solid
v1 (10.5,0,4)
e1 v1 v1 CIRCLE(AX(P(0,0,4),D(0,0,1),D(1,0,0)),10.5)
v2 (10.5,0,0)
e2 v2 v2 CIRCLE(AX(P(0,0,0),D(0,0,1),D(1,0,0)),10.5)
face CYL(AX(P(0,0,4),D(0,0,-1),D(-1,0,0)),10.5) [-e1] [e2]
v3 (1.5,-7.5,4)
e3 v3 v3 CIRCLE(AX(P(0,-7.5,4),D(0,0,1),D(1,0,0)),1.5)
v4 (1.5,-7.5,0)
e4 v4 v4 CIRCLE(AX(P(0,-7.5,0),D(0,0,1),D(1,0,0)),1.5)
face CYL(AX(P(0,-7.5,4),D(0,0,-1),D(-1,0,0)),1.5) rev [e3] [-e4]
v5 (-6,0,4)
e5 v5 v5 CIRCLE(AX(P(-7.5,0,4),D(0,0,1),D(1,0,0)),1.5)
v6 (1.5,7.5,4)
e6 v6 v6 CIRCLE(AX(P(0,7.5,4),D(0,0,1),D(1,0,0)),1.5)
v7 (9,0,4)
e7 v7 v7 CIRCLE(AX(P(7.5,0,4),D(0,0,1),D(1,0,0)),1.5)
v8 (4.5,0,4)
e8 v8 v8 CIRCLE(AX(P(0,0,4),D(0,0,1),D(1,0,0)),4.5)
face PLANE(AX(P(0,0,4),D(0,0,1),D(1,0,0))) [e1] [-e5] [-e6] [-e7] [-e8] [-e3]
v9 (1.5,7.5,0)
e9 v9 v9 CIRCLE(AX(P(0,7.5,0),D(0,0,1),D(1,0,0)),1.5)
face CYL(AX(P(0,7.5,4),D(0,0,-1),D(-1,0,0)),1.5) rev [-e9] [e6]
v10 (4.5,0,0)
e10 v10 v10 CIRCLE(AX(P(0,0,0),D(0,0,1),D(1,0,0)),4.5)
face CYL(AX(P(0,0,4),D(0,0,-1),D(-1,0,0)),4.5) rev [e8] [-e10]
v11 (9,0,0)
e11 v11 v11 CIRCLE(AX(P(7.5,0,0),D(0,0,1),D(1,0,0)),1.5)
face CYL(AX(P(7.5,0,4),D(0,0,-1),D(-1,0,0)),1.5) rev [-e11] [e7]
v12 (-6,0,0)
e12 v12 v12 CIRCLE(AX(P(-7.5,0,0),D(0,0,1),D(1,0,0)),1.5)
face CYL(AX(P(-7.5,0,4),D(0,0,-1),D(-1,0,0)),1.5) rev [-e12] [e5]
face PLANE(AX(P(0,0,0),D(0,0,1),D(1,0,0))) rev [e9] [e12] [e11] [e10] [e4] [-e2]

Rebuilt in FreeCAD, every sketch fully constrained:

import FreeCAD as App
import Part
import Sketcher

V = App.Vector
Q = App.Units.Quantity

doc = App.newDocument("Part")
body = doc.addObject("PartDesign::Body", "Body")

# Sketch on XY plane
sketch1 = doc.addObject("Sketcher::SketchObject", "Sketch")
body.addObject(sketch1)
sketch1.AttachmentSupport = (doc.XY_Plane, [""])
sketch1.MapMode = "FlatFace"
sketch1.addGeometry([
    Part.Circle(V(0, 0, 0), V(0, 0, 1), 10.5),  # 0
    Part.Circle(V(0, -7.5, 0), V(0, 0, 1), 1.5),  # 1
    Part.Circle(V(-7.5, 0, 0), V(0, 0, 1), 1.5),  # 2
    Part.Circle(V(0, 0, 0), V(0, 0, 1), 4.5),  # 3
    Part.Circle(V(7.5, 0, 0), V(0, 0, 1), 1.5),  # 4
    Part.Circle(V(0, 7.5, 0), V(0, 0, 1), 1.5),  # 5
], False)
sketch1.addConstraint([
    Sketcher.Constraint("Coincident", 0, 3, -1, 1),
    Sketcher.Constraint("Coincident", 3, 3, -1, 1),
    Sketcher.Constraint("Equal", 1, 2),
    Sketcher.Constraint("Equal", 2, 4),
    Sketcher.Constraint("Equal", 4, 5),
    Sketcher.Constraint("Symmetric", 2, 3, 4, 3, -1, 1),
    Sketcher.Constraint("Symmetric", 1, 3, 5, 3, -1, 1),
    Sketcher.Constraint("PointOnObject", 1, 3, -2),
    Sketcher.Constraint("PointOnObject", 2, 3, -1),
    Sketcher.Constraint("Diameter", 0, Q("21 mm")),
    Sketcher.Constraint("Diameter", 1, Q("3 mm")),
    Sketcher.Constraint("Diameter", 3, Q("9 mm")),
    Sketcher.Constraint("DistanceX", 2, 3, 4, 3, Q("15 mm")),
    Sketcher.Constraint("DistanceY", 1, 3, 5, 3, Q("15 mm")),
])
pad1 = doc.addObject("PartDesign::Pad", "Pad")
body.addObject(pad1)
pad1.Profile = sketch1
pad1.Length = 4

doc.recompute()
